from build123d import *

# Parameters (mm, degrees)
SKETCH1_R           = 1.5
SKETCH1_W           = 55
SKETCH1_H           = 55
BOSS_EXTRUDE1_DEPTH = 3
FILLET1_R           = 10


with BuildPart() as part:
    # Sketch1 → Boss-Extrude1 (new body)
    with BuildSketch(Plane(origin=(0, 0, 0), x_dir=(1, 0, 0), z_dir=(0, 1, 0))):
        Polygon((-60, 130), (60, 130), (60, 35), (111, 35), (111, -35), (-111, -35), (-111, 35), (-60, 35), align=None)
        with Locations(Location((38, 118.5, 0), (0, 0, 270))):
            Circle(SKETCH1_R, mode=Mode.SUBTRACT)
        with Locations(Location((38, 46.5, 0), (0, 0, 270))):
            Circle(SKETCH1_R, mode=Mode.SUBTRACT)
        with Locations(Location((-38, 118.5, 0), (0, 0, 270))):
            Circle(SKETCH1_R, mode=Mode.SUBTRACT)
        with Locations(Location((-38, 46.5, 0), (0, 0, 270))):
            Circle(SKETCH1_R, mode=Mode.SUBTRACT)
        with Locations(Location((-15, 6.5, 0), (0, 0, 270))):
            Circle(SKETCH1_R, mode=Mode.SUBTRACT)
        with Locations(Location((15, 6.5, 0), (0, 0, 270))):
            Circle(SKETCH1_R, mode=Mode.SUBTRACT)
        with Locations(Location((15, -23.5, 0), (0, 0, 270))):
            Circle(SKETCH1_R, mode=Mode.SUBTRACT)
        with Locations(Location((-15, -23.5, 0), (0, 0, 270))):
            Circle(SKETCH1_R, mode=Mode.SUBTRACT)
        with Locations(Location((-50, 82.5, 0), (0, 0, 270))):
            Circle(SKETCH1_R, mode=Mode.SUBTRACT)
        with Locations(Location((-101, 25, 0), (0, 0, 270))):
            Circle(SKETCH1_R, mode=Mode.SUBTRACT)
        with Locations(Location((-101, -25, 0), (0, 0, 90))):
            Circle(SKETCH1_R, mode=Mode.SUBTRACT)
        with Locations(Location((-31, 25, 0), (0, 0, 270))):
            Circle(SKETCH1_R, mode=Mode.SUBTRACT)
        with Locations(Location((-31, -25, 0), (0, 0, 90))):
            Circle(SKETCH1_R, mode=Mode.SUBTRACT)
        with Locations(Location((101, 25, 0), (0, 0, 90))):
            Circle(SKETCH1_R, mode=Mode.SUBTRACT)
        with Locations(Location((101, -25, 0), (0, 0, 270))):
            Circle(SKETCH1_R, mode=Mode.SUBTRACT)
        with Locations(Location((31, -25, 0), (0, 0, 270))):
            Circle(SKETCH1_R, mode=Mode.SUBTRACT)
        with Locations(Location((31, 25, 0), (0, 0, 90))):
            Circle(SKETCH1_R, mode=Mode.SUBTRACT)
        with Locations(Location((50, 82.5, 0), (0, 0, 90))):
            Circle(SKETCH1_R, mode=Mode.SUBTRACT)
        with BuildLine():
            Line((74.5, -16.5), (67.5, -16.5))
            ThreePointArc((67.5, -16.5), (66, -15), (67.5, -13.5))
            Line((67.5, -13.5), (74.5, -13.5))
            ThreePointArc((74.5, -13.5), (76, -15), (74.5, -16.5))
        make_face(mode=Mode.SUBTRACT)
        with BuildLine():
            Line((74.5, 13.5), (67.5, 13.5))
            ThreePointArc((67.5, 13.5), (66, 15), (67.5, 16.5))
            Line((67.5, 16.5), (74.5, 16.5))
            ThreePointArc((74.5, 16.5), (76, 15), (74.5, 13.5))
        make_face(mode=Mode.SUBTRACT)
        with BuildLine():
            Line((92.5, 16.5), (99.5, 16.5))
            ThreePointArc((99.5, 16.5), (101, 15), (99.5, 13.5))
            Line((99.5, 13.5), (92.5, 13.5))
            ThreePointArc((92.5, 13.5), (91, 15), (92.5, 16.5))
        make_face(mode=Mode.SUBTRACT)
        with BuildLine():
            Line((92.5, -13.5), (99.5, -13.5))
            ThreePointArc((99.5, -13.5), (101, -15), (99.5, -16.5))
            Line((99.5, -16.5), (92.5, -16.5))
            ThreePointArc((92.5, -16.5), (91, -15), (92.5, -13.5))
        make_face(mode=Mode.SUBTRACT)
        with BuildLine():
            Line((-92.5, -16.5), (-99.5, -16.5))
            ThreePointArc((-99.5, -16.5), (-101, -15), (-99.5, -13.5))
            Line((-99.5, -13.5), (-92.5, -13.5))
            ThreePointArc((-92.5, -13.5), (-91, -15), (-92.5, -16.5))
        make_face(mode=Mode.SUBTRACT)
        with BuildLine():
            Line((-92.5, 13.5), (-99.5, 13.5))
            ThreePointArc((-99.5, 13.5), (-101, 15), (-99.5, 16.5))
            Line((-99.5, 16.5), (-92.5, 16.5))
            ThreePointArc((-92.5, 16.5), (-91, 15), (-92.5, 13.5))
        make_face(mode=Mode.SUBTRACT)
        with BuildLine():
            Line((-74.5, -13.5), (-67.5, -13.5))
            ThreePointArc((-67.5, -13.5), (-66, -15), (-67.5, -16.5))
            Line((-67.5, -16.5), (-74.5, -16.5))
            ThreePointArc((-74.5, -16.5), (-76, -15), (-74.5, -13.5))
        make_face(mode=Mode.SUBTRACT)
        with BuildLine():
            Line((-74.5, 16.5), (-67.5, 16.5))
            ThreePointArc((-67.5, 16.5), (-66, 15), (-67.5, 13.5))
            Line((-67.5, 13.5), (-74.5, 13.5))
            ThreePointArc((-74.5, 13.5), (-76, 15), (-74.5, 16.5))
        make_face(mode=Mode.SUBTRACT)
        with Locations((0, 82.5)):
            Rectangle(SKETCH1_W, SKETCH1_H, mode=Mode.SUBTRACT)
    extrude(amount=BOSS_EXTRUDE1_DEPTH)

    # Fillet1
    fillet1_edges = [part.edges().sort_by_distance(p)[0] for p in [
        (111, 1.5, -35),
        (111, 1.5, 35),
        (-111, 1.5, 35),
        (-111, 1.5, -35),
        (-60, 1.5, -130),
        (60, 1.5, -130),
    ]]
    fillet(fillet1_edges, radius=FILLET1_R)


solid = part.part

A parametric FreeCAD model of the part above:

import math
import FreeCAD as App
import Part
import Sketcher

V = App.Vector
Q = App.Units.Quantity


def edges_at(feature, points):
    """Names of the edges that pass closest to the given points."""
    edges = feature.Shape.Edges
    near = lambda p: min(range(len(edges)), key=lambda i: edges[i].distToShape(Part.Vertex(*p))[0])
    return sorted({f"Edge{near(p) + 1}" for p in points})

doc = App.newDocument("Part")
params = doc.addObject("Spreadsheet::Sheet", "Params")
for row, (alias, value) in enumerate([
    ("sketch1_diameter", "3 mm"),
    ("sketch1_width", "120 mm"),
    ("sketch1_width2", "51 mm"),
    ("sketch1_width3", "7 mm"),
    ("sketch1_width4", "55 mm"),
    ("pad1_length", "3 mm"),
    ("fillet_radius", "10 mm"),
], start=1):
    params.set(f"A{row}", alias)
    params.set(f"B{row}", "=" + value)
    params.setAlias(f"B{row}", alias)

body = doc.addObject("PartDesign::Body", "Body")

sketch1 = doc.addObject("Sketcher::SketchObject", "Sketch")
body.addObject(sketch1)
sketch1.AttachmentSupport = (doc.XZ_Plane, [""])
sketch1.MapMode = "FlatFace"
sketch1.addGeometry(Part.LineSegment(V(60, -130, 0), V(-60, -130, 0)), False)
sketch1.addGeometry(Part.LineSegment(V(-60, -130, 0), V(-60, -35, 0)), False)
sketch1.addGeometry(Part.LineSegment(V(-60, -35, 0), V(-111, -35, 0)), False)
sketch1.addGeometry(Part.LineSegment(V(-111, -35, 0), V(-111, 35, 0)), False)
sketch1.addGeometry(Part.LineSegment(V(-111, 35, 0), V(111, 35, 0)), False)
sketch1.addGeometry(Part.LineSegment(V(111, 35, 0), V(111, -35, 0)), False)
sketch1.addGeometry(Part.LineSegment(V(111, -35, 0), V(60, -35, 0)), False)
sketch1.addGeometry(Part.LineSegment(V(60, -35, 0), V(60, -130, 0)), False)
sketch1.addGeometry(Part.Circle(V(101, 25, 0), V(0, 0, 1), 1.5), False)
sketch1.addGeometry(Part.LineSegment(V(92.5, 13.5, 0), V(99.5, 13.5, 0)), False)
sketch1.addGeometry(Part.ArcOfCircle(Part.Circle(V(99.5, 15, 0), V(0, 0, 1), 1.5), math.radians(-90), math.radians(90)), False)
sketch1.addGeometry(Part.LineSegment(V(99.5, 16.5, 0), V(92.5, 16.5, 0)), False)
sketch1.addGeometry(Part.ArcOfCircle(Part.Circle(V(92.5, 15, 0), V(0, 0, 1), 1.5), math.radians(90), math.radians(270)), False)
sketch1.addGeometry(Part.LineSegment(V(74.5, 16.5, 0), V(67.5, 16.5, 0)), False)
sketch1.addGeometry(Part.ArcOfCircle(Part.Circle(V(67.5, 15, 0), V(0, 0, 1), 1.5), math.radians(90), math.radians(270)), False)
sketch1.addGeometry(Part.LineSegment(V(67.5, 13.5, 0), V(74.5, 13.5, 0)), False)
sketch1.addGeometry(Part.ArcOfCircle(Part.Circle(V(74.5, 15, 0), V(0, 0, 1), 1.5), math.radians(-90), math.radians(90)), False)
sketch1.addGeometry(Part.Circle(V(31, 25, 0), V(0, 0, 1), 1.5), False)
sketch1.addGeometry(Part.Circle(V(15, 23.5, 0), V(0, 0, 1), 1.5), False)
sketch1.addGeometry(Part.Circle(V(15, -6.5, 0), V(0, 0, 1), 1.5), False)
sketch1.addGeometry(Part.LineSegment(V(92.5, -16.5, 0), V(99.5, -16.5, 0)), False)
sketch1.addGeometry(Part.ArcOfCircle(Part.Circle(V(99.5, -15, 0), V(0, 0, 1), 1.5), math.radians(-90), math.radians(90)), False)
sketch1.addGeometry(Part.LineSegment(V(99.5, -13.5, 0), V(92.5, -13.5, 0)), False)
sketch1.addGeometry(Part.ArcOfCircle(Part.Circle(V(92.5, -15, 0), V(0, 0, 1), 1.5), math.radians(90), math.radians(270)), False)
sketch1.addGeometry(Part.Circle(V(101, -25, 0), V(0, 0, 1), 1.5), False)
sketch1.addGeometry(Part.LineSegment(V(74.5, -13.5, 0), V(67.5, -13.5, 0)), False)
sketch1.addGeometry(Part.ArcOfCircle(Part.Circle(V(67.5, -15, 0), V(0, 0, 1), 1.5), math.radians(90), math.radians(270)), False)
sketch1.addGeometry(Part.LineSegment(V(67.5, -16.5, 0), V(74.5, -16.5, 0)), False)
sketch1.addGeometry(Part.ArcOfCircle(Part.Circle(V(74.5, -15, 0), V(0, 0, 1), 1.5), math.radians(-90), math.radians(90)), False)
sketch1.addGeometry(Part.Circle(V(31, -25, 0), V(0, 0, 1), 1.5), False)
sketch1.addGeometry(Part.Circle(V(38, -46.5, 0), V(0, 0, 1), 1.5), False)
sketch1.addGeometry(Part.Circle(V(-15, 23.5, 0), V(0, 0, 1), 1.5), False)
sketch1.addGeometry(Part.Circle(V(-31, 25, 0), V(0, 0, 1), 1.5), False)
sketch1.addGeometry(Part.Circle(V(-15, -6.5, 0), V(0, 0, 1), 1.5), False)
sketch1.addGeometry(Part.LineSegment(V(-74.5, 13.5, 0), V(-67.5, 13.5, 0)), False)
sketch1.addGeometry(Part.ArcOfCircle(Part.Circle(V(-67.5, 15, 0), V(0, 0, 1), 1.5), math.radians(-90), math.radians(90)), False)
sketch1.addGeometry(Part.LineSegment(V(-67.5, 16.5, 0), V(-74.5, 16.5, 0)), False)
sketch1.addGeometry(Part.ArcOfCircle(Part.Circle(V(-74.5, 15, 0), V(0, 0, 1), 1.5), math.radians(90), math.radians(270)), False)
sketch1.addGeometry(Part.Circle(V(-101, 25, 0), V(0, 0, 1), 1.5), False)
sketch1.addGeometry(Part.LineSegment(V(-92.5, 16.5, 0), V(-99.5, 16.5, 0)), False)
sketch1.addGeometry(Part.ArcOfCircle(Part.Circle(V(-99.5, 15, 0), V(0, 0, 1), 1.5), math.radians(90), math.radians(270)), False)
sketch1.addGeometry(Part.LineSegment(V(-99.5, 13.5, 0), V(-92.5, 13.5, 0)), False)
sketch1.addGeometry(Part.ArcOfCircle(Part.Circle(V(-92.5, 15, 0), V(0, 0, 1), 1.5), math.radians(-90), math.radians(90)), False)
sketch1.addGeometry(Part.Circle(V(-31, -25, 0), V(0, 0, 1), 1.5), False)
sketch1.addGeometry(Part.Circle(V(-38, -46.5, 0), V(0, 0, 1), 1.5), False)
sketch1.addGeometry(Part.LineSegment(V(-74.5, -16.5, 0), V(-67.5, -16.5, 0)), False)
sketch1.addGeometry(Part.ArcOfCircle(Part.Circle(V(-67.5, -15, 0), V(0, 0, 1), 1.5), math.radians(-90), math.radians(90)), False)
sketch1.addGeometry(Part.LineSegment(V(-67.5, -13.5, 0), V(-74.5, -13.5, 0)), False)
sketch1.addGeometry(Part.ArcOfCircle(Part.Circle(V(-74.5, -15, 0), V(0, 0, 1), 1.5), math.radians(90), math.radians(270)), False)
sketch1.addGeometry(Part.LineSegment(V(-92.5, -13.5, 0), V(-99.5, -13.5, 0)), False)
sketch1.addGeometry(Part.ArcOfCircle(Part.Circle(V(-99.5, -15, 0), V(0, 0, 1), 1.5), math.radians(90), math.radians(270)), False)
sketch1.addGeometry(Part.LineSegment(V(-99.5, -16.5, 0), V(-92.5, -16.5, 0)), False)
sketch1.addGeometry(Part.ArcOfCircle(Part.Circle(V(-92.5, -15, 0), V(0, 0, 1), 1.5), math.radians(-90), math.radians(90)), False)
sketch1.addGeometry(Part.Circle(V(-101, -25, 0), V(0, 0, 1), 1.5), False)
sketch1.addGeometry(Part.Circle(V(50, -82.5, 0), V(0, 0, 1), 1.5), False)
sketch1.addGeometry(Part.Circle(V(38, -118.5, 0), V(0, 0, 1), 1.5), False)
sketch1.addGeometry(Part.LineSegment(V(-27.5, -55, 0), V(-27.5, -110, 0)), False)
sketch1.addGeometry(Part.LineSegment(V(-27.5, -110, 0), V(27.5, -110, 0)), False)
sketch1.addGeometry(Part.LineSegment(V(27.5, -110, 0), V(27.5, -55, 0)), False)
sketch1.addGeometry(Part.LineSegment(V(27.5, -55, 0), V(-27.5, -55, 0)), False)
sketch1.addGeometry(Part.Circle(V(-50, -82.5, 0), V(0, 0, 1), 1.5), False)
sketch1.addGeometry(Part.Circle(V(-38, -118.5, 0), V(0, 0, 1), 1.5), False)
sketch1.addConstraint(Sketcher.Constraint("Coincident", 0, 2, 1, 1))
sketch1.addConstraint(Sketcher.Constraint("Coincident", 1, 2, 2, 1))
sketch1.addConstraint(Sketcher.Constraint("Coincident", 2, 2, 3, 1))
sketch1.addConstraint(Sketcher.Constraint("Coincident", 3, 2, 4, 1))
sketch1.addConstraint(Sketcher.Constraint("Coincident", 4, 2, 5, 1))
sketch1.addConstraint(Sketcher.Constraint("Coincident", 5, 2, 6, 1))
sketch1.addConstraint(Sketcher.Constraint("Coincident", 6, 2, 7, 1))
sketch1.addConstraint(Sketcher.Constraint("Coincident", 7, 2, 0, 1))
sketch1.addConstraint(Sketcher.Constraint("Tangent", 9, 2, 10, 1))
sketch1.addConstraint(Sketcher.Constraint("Tangent", 10, 2, 11, 1))
sketch1.addConstraint(Sketcher.Constraint("Tangent", 11, 2, 12, 1))
sketch1.addConstraint(Sketcher.Constraint("Tangent", 12, 2, 9, 1))
sketch1.addConstraint(Sketcher.Constraint("Tangent", 13, 2, 14, 1))
sketch1.addConstraint(Sketcher.Constraint("Tangent", 14, 2, 15, 1))
sketch1.addConstraint(Sketcher.Constraint("Tangent", 15, 2, 16, 1))
sketch1.addConstraint(Sketcher.Constraint("Tangent", 16, 2, 13, 1))
sketch1.addConstraint(Sketcher.Constraint("Tangent", 20, 2, 21, 1))
sketch1.addConstraint(Sketcher.Constraint("Tangent", 21, 2, 22, 1))
sketch1.addConstraint(Sketcher.Constraint("Tangent", 22, 2, 23, 1))
sketch1.addConstraint(Sketcher.Constraint("Tangent", 23, 2, 20, 1))
sketch1.addConstraint(Sketcher.Constraint("Tangent", 25, 2, 26, 1))
sketch1.addConstraint(Sketcher.Constraint("Tangent", 26, 2, 27, 1))
sketch1.addConstraint(Sketcher.Constraint("Tangent", 27, 2, 28, 1))
sketch1.addConstraint(Sketcher.Constraint("Tangent", 28, 2, 25, 1))
sketch1.addConstraint(Sketcher.Constraint("Tangent", 34, 2, 35, 1))
sketch1.addConstraint(Sketcher.Constraint("Tangent", 35, 2, 36, 1))
sketch1.addConstraint(Sketcher.Constraint("Tangent", 36, 2, 37, 1))
sketch1.addConstraint(Sketcher.Constraint("Tangent", 37, 2, 34, 1))
sketch1.addConstraint(Sketcher.Constraint("Tangent", 39, 2, 40, 1))
sketch1.addConstraint(Sketcher.Constraint("Tangent", 40, 2, 41, 1))
sketch1.addConstraint(Sketcher.Constraint("Tangent", 41, 2, 42, 1))
sketch1.addConstraint(Sketcher.Constraint("Tangent", 42, 2, 39, 1))
sketch1.addConstraint(Sketcher.Constraint("Tangent", 45, 2, 46, 1))
sketch1.addConstraint(Sketcher.Constraint("Tangent", 46, 2, 47, 1))
sketch1.addConstraint(Sketcher.Constraint("Tangent", 47, 2, 48, 1))
sketch1.addConstraint(Sketcher.Constraint("Tangent", 48, 2, 45, 1))
sketch1.addConstraint(Sketcher.Constraint("Tangent", 49, 2, 50, 1))
sketch1.addConstraint(Sketcher.Constraint("Tangent", 50, 2, 51, 1))
sketch1.addConstraint(Sketcher.Constraint("Tangent", 51, 2, 52, 1))
sketch1.addConstraint(Sketcher.Constraint("Tangent", 52, 2, 49, 1))
sketch1.addConstraint(Sketcher.Constraint("Coincident", 56, 2, 57, 1))
sketch1.addConstraint(Sketcher.Constraint("Coincident", 57, 2, 58, 1))
sketch1.addConstraint(Sketcher.Constraint("Coincident", 58, 2, 59, 1))
sketch1.addConstraint(Sketcher.Constraint("Coincident", 59, 2, 56, 1))
sketch1.addConstraint(Sketcher.Constraint("Horizontal", 0))
sketch1.addConstraint(Sketcher.Constraint("Vertical", 1))
sketch1.addConstraint(Sketcher.Constraint("Horizontal", 2))
sketch1.addConstraint(Sketcher.Constraint("Vertical", 3))
sketch1.addConstraint(Sketcher.Constraint("Horizontal", 4))
sketch1.addConstraint(Sketcher.Constraint("Vertical", 5))
sketch1.addConstraint(Sketcher.Constraint("Horizontal", 6))
sketch1.addConstraint(Sketcher.Constraint("Vertical", 7))
sketch1.addConstraint(Sketcher.Constraint("Horizontal", 9))
sketch1.addConstraint(Sketcher.Constraint("Horizontal", 11))
sketch1.addConstraint(Sketcher.Constraint("Horizontal", 13))
sketch1.addConstraint(Sketcher.Constraint("Horizontal", 15))
sketch1.addConstraint(Sketcher.Constraint("Horizontal", 20))
sketch1.addConstraint(Sketcher.Constraint("Horizontal", 22))
sketch1.addConstraint(Sketcher.Constraint("Horizontal", 25))
sketch1.addConstraint(Sketcher.Constraint("Horizontal", 27))
sketch1.addConstraint(Sketcher.Constraint("Horizontal", 34))
sketch1.addConstraint(Sketcher.Constraint("Horizontal", 36))
sketch1.addConstraint(Sketcher.Constraint("Horizontal", 39))
sketch1.addConstraint(Sketcher.Constraint("Horizontal", 41))
sketch1.addConstraint(Sketcher.Constraint("Horizontal", 45))
sketch1.addConstraint(Sketcher.Constraint("Horizontal", 47))
sketch1.addConstraint(Sketcher.Constraint("Horizontal", 49))
sketch1.addConstraint(Sketcher.Constraint("Horizontal", 51))
sketch1.addConstraint(Sketcher.Constraint("Vertical", 56))
sketch1.addConstraint(Sketcher.Constraint("Horizontal", 57))
sketch1.addConstraint(Sketcher.Constraint("Vertical", 58))
sketch1.addConstraint(Sketcher.Constraint("Horizontal", 59))
sketch1.addConstraint(Sketcher.Constraint("Equal", 8, 10))
sketch1.addConstraint(Sketcher.Constraint("Equal", 12, 14))
sketch1.addConstraint(Sketcher.Constraint("Equal", 16, 17))
sketch1.addConstraint(Sketcher.Constraint("Equal", 17, 18))
sketch1.addConstraint(Sketcher.Constraint("Equal", 18, 19))
sketch1.addConstraint(Sketcher.Constraint("Equal", 19, 21))
sketch1.addConstraint(Sketcher.Constraint("Equal", 23, 24))
sketch1.addConstraint(Sketcher.Constraint("Equal", 24, 26))
sketch1.addConstraint(Sketcher.Constraint("Equal", 28, 29))
sketch1.addConstraint(Sketcher.Constraint("Equal", 29, 30))
sketch1.addConstraint(Sketcher.Constraint("Equal", 30, 31))
sketch1.addConstraint(Sketcher.Constraint("Equal", 31, 32))
sketch1.addConstraint(Sketcher.Constraint("Equal", 32, 33))
sketch1.addConstraint(Sketcher.Constraint("Equal", 33, 35))
sketch1.addConstraint(Sketcher.Constraint("Equal", 37, 38))
sketch1.addConstraint(Sketcher.Constraint("Equal", 38, 40))
sketch1.addConstraint(Sketcher.Constraint("Equal", 42, 43))
sketch1.addConstraint(Sketcher.Constraint("Equal", 43, 44))
sketch1.addConstraint(Sketcher.Constraint("Equal", 44, 46))
sketch1.addConstraint(Sketcher.Constraint("Equal", 48, 50))
sketch1.addConstraint(Sketcher.Constraint("Equal", 52, 53))
sketch1.addConstraint(Sketcher.Constraint("Equal", 53, 54))
sketch1.addConstraint(Sketcher.Constraint("Equal", 54, 55))
sketch1.addConstraint(Sketcher.Constraint("Equal", 55, 60))
sketch1.addConstraint(Sketcher.Constraint("Equal", 60, 61))
sketch1.addConstraint(Sketcher.Constraint("Symmetric", 29, 3, 32, 3, -1, 1))
sketch1.addConstraint(Sketcher.Constraint("Symmetric", 26, 3, 35, 3, -1, 1))
sketch1.addConstraint(Sketcher.Constraint("Symmetric", 24, 3, 38, 3, -1, 1))
sketch1.addConstraint(Sketcher.Constraint("Symmetric", 21, 3, 40, 3, -1, 1))
sketch1.addConstraint(Sketcher.Constraint("Symmetric", 17, 3, 43, 3, -1, 1))
sketch1.addConstraint(Sketcher.Constraint("Symmetric", 14, 3, 46, 3, -1, 1))
sketch1.addConstraint(Sketcher.Constraint("Symmetric", 10, 3, 50, 3, -1, 1))
sketch1.addConstraint(Sketcher.Constraint("Symmetric", 8, 3, 53, 3, -1, 1))
sketch1.addConstraint(Sketcher.Constraint("Symmetric", 2, 2, 4, 2, -1, 1))
sketch1.addConstraint(Sketcher.Constraint("Symmetric", 18, 3, 31, 3, -2))
sketch1.addConstraint(Sketcher.Constraint("Symmetric", 17, 3, 32, 3, -2))
sketch1.addConstraint(Sketcher.Constraint("Symmetric", 19, 3, 33, 3, -2))
sketch1.addConstraint(Sketcher.Constraint("Symmetric", 14, 3, 35, 3, -2))
sketch1.addConstraint(Sketcher.Constraint("Symmetric", 8, 3, 38, 3, -2))
sketch1.addConstraint(Sketcher.Constraint("Symmetric", 10, 3, 40, 3, -2))
sketch1.addConstraint(Sketcher.Constraint("Symmetric", 30, 3, 44, 3, -2))
sketch1.addConstraint(Sketcher.Constraint("Symmetric", 54, 3, 60, 3, -2))
sketch1.addConstraint(Sketcher.Constraint("Symmetric", 55, 3, 61, 3, -2))
sketch1.addConstraint(Sketcher.Constraint("Symmetric", 1, 2, 6, 2, -2))
sketch1.addConstraint(Sketcher.Constraint("Horizontal", 12, 3, 14, 3))
sketch1.addConstraint(Sketcher.Constraint("Horizontal", 8, 3, 17, 3))
sketch1.addConstraint(Sketcher.Constraint("Vertical", 18, 3, 19, 3))
sketch1.addConstraint(Sketcher.Constraint("Vertical", 12, 3, 23, 3))
sketch1.addConstraint(Sketcher.Constraint("Vertical", 16, 3, 28, 3))
sketch1.addConstraint(Sketcher.Constraint("Vertical", 37, 3, 48, 3))
sketch1.addConstraint(Sketcher.Constraint("Vertical", 42, 3, 52, 3))
sketch1.addConstraint(Sketcher.Constraint("Vertical", 30, 3, 55, 3))
sketch1.addConstraint(Sketcher.Constraint("Equal", 11, 13))
sketch1.addConstraint(Sketcher.Constraint("Equal", 27, 34))
sketch1.addConstraint(Sketcher.Constraint("Equal", 36, 39))
sketch1.addConstraint(Sketcher.Constraint("Equal", 59, 56))
sketch1.addConstraint(Sketcher.Constraint("Diameter", 8, Q("3 mm")))
sketch1.addConstraint(Sketcher.Constraint("DistanceX", 0, 2, 0, 1, Q("120 mm")))
sketch1.addConstraint(Sketcher.Constraint("DistanceX", 2, 2, 2, 1, Q("51 mm")))
sketch1.addConstraint(Sketcher.Constraint("DistanceX", 9, 1, 9, 2, Q("7 mm")))
sketch1.addConstraint(Sketcher.Constraint("DistanceX", 57, 1, 57, 2, Q("55 mm")))
sketch1.addConstraint(Sketcher.Constraint("DistanceY", 1, 1, 1, 2, Q("95 mm")))
sketch1.addConstraint(Sketcher.Constraint("DistanceY", 3, 1, 3, 2, Q("70 mm")))
sketch1.addConstraint(Sketcher.Constraint("DistanceX", -1, 1, 8, 3, Q("101 mm")))
sketch1.addConstraint(Sketcher.Constraint("DistanceY", -1, 1, 8, 3, Q("25 mm")))
sketch1.addConstraint(Sketcher.Constraint("DistanceY", -1, 1, 10, 3, Q("15 mm")))
sketch1.addConstraint(Sketcher.Constraint("DistanceX", -1, 1, 17, 3, Q("31 mm")))
sketch1.addConstraint(Sketcher.Constraint("DistanceX", -1, 1, 18, 3, Q("15 mm")))
sketch1.addConstraint(Sketcher.Constraint("DistanceX", -1, 1, 30, 3, Q("38 mm")))
sketch1.addConstraint(Sketcher.Constraint("DistanceX", -1, 1, 54, 3, Q("50 mm")))
sketch1.addConstraint(Sketcher.Constraint("DistanceY", 56, 2, -1, 1, Q("110 mm")))
sketch1.addConstraint(Sketcher.Constraint("DistanceX", -1, 1, 10, 3, Q("99.5 mm")))
sketch1.addConstraint(Sketcher.Constraint("DistanceX", -1, 1, 14, 3, Q("67.5 mm")))
sketch1.addConstraint(Sketcher.Constraint("DistanceY", -1, 1, 18, 3, Q("23.5 mm")))
sketch1.addConstraint(Sketcher.Constraint("DistanceY", 19, 3, -1, 1, Q("6.5 mm")))
sketch1.addConstraint(Sketcher.Constraint("DistanceY", 30, 3, -1, 1, Q("46.5 mm")))
sketch1.addConstraint(Sketcher.Constraint("DistanceY", 54, 3, -1, 1, Q("82.5 mm")))
sketch1.addConstraint(Sketcher.Constraint("DistanceY", 55, 3, -1, 1, Q("118.5 mm")))
sketch1.addConstraint(Sketcher.Constraint("DistanceX", 56, 2, -1, 1, Q("27.5 mm")))
sketch1.setExpression("Constraints[128]", "Params.sketch1_diameter")
sketch1.setExpression("Constraints[129]", "Params.sketch1_width")
sketch1.setExpression("Constraints[130]", "Params.sketch1_width2")
sketch1.setExpression("Constraints[131]", "Params.sketch1_width3")
sketch1.setExpression("Constraints[132]", "Params.sketch1_width4")
pad1 = doc.addObject("PartDesign::Pad", "Pad")
body.addObject(pad1)
pad1.Profile = sketch1
pad1.setExpression("Length", "Params.pad1_length")
pad1.Reversed = True
doc.recompute()

fillet = doc.addObject("PartDesign::Fillet", "Fillet")
body.addObject(fillet)
fillet.Base = (pad1, edges_at(pad1, [
    (111, 1.5, -35),
    (111, 1.5, 35),
    (-111, 1.5, 35),
    (-111, 1.5, -35),
    (-60, 1.5, -130),
    (60, 1.5, -130),
]))
fillet.setExpression("Radius", "Params.fillet_radius")

doc.recompute()
